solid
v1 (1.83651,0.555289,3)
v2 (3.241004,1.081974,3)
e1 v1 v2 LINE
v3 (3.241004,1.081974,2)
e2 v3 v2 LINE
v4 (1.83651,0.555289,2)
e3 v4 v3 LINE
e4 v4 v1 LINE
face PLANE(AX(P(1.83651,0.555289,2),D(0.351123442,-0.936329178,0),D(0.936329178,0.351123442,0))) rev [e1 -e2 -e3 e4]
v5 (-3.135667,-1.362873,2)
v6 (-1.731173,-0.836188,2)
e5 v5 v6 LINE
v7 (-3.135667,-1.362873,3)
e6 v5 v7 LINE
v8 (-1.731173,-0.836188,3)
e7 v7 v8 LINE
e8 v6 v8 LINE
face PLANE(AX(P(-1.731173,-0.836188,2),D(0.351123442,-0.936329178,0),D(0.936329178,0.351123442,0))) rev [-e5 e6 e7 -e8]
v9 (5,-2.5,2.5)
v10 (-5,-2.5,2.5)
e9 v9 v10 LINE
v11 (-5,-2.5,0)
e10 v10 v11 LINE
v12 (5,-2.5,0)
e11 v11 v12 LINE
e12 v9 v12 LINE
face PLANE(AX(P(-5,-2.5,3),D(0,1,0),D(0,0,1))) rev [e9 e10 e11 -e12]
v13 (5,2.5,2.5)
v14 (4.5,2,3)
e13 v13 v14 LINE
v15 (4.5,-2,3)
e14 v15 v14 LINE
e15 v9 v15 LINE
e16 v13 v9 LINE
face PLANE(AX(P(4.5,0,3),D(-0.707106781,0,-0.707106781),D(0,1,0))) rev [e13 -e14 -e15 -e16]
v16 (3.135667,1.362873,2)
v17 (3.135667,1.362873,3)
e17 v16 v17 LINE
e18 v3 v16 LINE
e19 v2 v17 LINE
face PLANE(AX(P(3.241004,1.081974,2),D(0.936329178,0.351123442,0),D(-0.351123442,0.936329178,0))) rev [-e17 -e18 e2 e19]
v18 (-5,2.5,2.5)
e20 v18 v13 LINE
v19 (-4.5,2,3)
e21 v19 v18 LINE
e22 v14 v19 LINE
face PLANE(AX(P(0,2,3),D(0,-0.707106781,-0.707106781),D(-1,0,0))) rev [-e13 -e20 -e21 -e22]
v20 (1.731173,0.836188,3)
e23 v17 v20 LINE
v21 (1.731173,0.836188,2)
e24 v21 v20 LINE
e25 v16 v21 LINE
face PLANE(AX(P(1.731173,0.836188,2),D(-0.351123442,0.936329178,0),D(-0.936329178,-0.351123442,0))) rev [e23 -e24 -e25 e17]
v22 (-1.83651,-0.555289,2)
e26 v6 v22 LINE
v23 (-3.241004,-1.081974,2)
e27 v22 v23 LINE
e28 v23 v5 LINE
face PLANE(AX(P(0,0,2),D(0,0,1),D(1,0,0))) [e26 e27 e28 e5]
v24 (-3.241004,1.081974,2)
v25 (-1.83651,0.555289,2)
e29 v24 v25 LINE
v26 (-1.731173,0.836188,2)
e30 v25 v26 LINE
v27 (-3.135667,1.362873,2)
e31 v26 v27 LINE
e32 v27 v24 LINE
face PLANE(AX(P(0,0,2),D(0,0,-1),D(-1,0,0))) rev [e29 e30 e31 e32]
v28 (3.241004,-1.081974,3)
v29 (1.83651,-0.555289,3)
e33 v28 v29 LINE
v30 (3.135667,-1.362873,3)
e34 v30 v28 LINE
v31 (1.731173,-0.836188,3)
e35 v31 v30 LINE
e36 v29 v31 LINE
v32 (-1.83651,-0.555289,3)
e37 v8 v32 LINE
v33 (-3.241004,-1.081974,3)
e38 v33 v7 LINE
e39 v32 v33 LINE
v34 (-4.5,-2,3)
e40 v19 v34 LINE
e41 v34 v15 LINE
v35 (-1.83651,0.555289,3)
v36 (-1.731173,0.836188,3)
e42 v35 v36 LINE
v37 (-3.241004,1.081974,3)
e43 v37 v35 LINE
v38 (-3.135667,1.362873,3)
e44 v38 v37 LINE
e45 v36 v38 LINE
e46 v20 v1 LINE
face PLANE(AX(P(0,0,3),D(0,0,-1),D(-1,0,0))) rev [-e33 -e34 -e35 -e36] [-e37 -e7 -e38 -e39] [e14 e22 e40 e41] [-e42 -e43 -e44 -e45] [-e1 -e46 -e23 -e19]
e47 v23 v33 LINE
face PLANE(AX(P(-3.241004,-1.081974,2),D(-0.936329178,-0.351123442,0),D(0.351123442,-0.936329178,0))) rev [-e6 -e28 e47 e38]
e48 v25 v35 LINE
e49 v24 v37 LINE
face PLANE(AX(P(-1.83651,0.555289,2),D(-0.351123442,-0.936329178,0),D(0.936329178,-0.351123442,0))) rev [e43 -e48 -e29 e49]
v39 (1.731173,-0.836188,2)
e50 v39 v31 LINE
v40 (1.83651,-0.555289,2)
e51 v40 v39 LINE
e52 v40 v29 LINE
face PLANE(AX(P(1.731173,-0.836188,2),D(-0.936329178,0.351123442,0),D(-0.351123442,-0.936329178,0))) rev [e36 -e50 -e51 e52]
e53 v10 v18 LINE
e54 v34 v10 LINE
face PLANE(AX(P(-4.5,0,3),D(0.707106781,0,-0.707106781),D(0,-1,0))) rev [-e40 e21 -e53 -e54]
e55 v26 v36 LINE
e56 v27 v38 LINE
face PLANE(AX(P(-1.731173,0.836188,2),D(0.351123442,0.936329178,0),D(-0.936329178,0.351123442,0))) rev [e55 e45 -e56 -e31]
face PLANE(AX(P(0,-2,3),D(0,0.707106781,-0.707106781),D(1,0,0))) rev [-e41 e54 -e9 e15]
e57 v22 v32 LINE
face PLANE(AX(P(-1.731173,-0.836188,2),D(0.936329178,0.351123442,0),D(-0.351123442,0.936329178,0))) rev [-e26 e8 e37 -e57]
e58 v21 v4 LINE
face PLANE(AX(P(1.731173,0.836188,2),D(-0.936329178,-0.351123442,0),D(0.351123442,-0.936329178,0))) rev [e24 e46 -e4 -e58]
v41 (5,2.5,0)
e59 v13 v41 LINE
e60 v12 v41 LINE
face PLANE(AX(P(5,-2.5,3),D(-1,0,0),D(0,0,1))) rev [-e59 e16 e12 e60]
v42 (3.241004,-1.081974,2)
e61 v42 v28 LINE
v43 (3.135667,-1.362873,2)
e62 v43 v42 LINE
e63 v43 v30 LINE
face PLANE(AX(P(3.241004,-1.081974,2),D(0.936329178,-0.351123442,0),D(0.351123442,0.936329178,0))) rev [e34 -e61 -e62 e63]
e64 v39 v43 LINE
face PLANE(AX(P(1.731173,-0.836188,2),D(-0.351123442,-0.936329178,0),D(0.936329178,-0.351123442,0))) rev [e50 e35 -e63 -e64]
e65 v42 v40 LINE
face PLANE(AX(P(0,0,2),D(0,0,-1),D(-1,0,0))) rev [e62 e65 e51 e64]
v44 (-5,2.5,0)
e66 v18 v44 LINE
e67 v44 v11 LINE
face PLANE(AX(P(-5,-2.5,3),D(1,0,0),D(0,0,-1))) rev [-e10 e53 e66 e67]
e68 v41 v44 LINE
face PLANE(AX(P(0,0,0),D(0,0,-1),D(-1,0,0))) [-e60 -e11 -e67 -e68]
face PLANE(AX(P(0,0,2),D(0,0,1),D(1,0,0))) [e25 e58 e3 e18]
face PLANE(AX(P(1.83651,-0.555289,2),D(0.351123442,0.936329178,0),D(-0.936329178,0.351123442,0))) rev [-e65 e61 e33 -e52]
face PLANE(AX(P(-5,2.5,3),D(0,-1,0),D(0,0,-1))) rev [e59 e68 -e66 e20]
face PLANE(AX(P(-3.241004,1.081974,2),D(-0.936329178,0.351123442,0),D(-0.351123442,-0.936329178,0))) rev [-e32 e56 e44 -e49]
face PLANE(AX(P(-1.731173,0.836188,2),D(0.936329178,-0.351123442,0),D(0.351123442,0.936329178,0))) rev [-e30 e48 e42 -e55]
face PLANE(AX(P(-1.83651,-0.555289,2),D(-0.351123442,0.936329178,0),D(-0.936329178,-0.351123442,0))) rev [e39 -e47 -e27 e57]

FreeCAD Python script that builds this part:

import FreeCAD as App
import Part
import Sketcher

V = App.Vector


def edges_at(feature, points):
    """Names of the edges that pass closest to the given points."""
    edges = feature.Shape.Edges
    near = lambda p: min(range(len(edges)), key=lambda i: edges[i].distToShape(Part.Vertex(*p))[0])
    return sorted({f"Edge{near(p) + 1}" for p in points})

doc = App.newDocument("Part")
body = doc.addObject("PartDesign::Body", "Body")

sketch1 = body.newObject("Sketcher::SketchObject", "Sketch")
sketch1.AttachmentSupport = (doc.getObject("XY_Plane"), [""])
sketch1.MapMode = "FlatFace"
sketch1.addGeometry([
    Part.LineSegment(V(-5, 2, 0), V(-5, -2, 0)),
    Part.LineSegment(V(-5, -2, 0), V(5, -2, 0)),
    Part.LineSegment(V(5, -2, 0), V(5, 2, 0)),
    Part.LineSegment(V(5, 2, 0), V(-5, 2, 0)),
], False)
sketch1.addConstraint([
    Sketcher.Constraint("Coincident", 0, 2, 1, 1),
    Sketcher.Constraint("Coincident", 1, 2, 2, 1),
    Sketcher.Constraint("Coincident", 2, 2, 3, 1),
    Sketcher.Constraint("Coincident", 3, 2, 0, 1),
    Sketcher.Constraint("Vertical", 0),
    Sketcher.Constraint("Horizontal", 1),
    Sketcher.Constraint("Vertical", 2),
    Sketcher.Constraint("Horizontal", 3),
    Sketcher.Constraint("Symmetric", 0, 2, 2, 2, -1, 1),
    Sketcher.Constraint("DistanceX", 1, 1, 1, 2, 10.0),
    Sketcher.Constraint("DistanceY", 0, 2, 0, 1, 5.0),
])
pad1 = body.newObject("PartDesign::Pad", "Pad")
pad1.Profile = sketch1
pad1.Length = 3
doc.recompute()

chamfer = body.newObject("PartDesign::Chamfer", "Chamfer")
chamfer.Base = (pad1, edges_at(pad1, [
    (-5, 0, 3),
    (0, -2.5, 3),
    (5, 0, 3),
    (0, 2.5, 3),
]))
chamfer.Size = 0.5

sketch2 = body.newObject("Sketcher::SketchObject", "Sketch001")
sketch2.AttachmentSupport = (doc.getObject("XY_Plane"), [""])
sketch2.MapMode = "FlatFace"
sketch2.AttachmentOffset = App.Placement(V(0, 0, 3), App.Rotation())
sketch2.addGeometry([
    Part.LineSegment(V(1.73, 0.84, 0), V(1.84, 0.56, 0)),
    Part.LineSegment(V(1.84, 0.56, 0), V(3.24, 1.08, 0)),
    Part.LineSegment(V(3.24, 1.08, 0), V(3.14, 1.36, 0)),
    Part.LineSegment(V(3.14, 1.36, 0), V(1.73, 0.84, 0)),
    Part.LineSegment(V(-1.73, 0.84, 0), V(-3.14, 1.36, 0)),
    Part.LineSegment(V(-3.14, 1.36, 0), V(-3.24, 1.08, 0)),
    Part.LineSegment(V(-3.24, 1.08, 0), V(-1.84, 0.56, 0)),
    Part.LineSegment(V(-1.84, 0.56, 0), V(-1.73, 0.84, 0)),
    Part.LineSegment(V(1.73, -0.84, 0), V(3.14, -1.36, 0)),
    Part.LineSegment(V(3.14, -1.36, 0), V(3.24, -1.08, 0)),
    Part.LineSegment(V(3.24, -1.08, 0), V(1.84, -0.56, 0)),
    Part.LineSegment(V(1.84, -0.56, 0), V(1.73, -0.84, 0)),
    Part.LineSegment(V(-1.73, -0.84, 0), V(-1.84, -0.56, 0)),
    Part.LineSegment(V(-1.84, -0.56, 0), V(-3.24, -1.08, 0)),
    Part.LineSegment(V(-3.24, -1.08, 0), V(-3.14, -1.36, 0)),
    Part.LineSegment(V(-3.14, -1.36, 0), V(-1.73, -0.84, 0)),
], False)
sketch2.addConstraint([
    Sketcher.Constraint("Coincident", 0, 2, 1, 1),
    Sketcher.Constraint("Coincident", 1, 2, 2, 1),
    Sketcher.Constraint("Coincident", 2, 2, 3, 1),
    Sketcher.Constraint("Coincident", 3, 2, 0, 1),
    Sketcher.Constraint("Coincident", 4, 2, 5, 1),
    Sketcher.Constraint("Coincident", 5, 2, 6, 1),
    Sketcher.Constraint("Coincident", 6, 2, 7, 1),
    Sketcher.Constraint("Coincident", 7, 2, 4, 1),
    Sketcher.Constraint("Coincident", 8, 2, 9, 1),
    Sketcher.Constraint("Coincident", 9, 2, 10, 1),
    Sketcher.Constraint("Coincident", 10, 2, 11, 1),
    Sketcher.Constraint("Coincident", 11, 2, 8, 1),
    Sketcher.Constraint("Coincident", 12, 2, 13, 1),
    Sketcher.Constraint("Coincident", 13, 2, 14, 1),
    Sketcher.Constraint("Coincident", 14, 2, 15, 1),
    Sketcher.Constraint("Coincident", 15, 2, 12, 1),
    Sketcher.Constraint("Symmetric", 4, 2, 8, 2, -1, 1),
    Sketcher.Constraint("Symmetric", 5, 2, 9, 2, -1, 1),
    Sketcher.Constraint("Symmetric", 6, 2, 10, 2, -1, 1),
    Sketcher.Constraint("Symmetric", 7, 2, 11, 2, -1, 1),
    Sketcher.Constraint("Symmetric", 0, 2, 12, 2, -1, 1),
    Sketcher.Constraint("Symmetric", 1, 2, 13, 2, -1, 1),
    Sketcher.Constraint("Symmetric", 2, 2, 14, 2, -1, 1),
    Sketcher.Constraint("Symmetric", 3, 2, 15, 2, -1, 1),
    Sketcher.Constraint("Symmetric", 2, 2, 4, 2, -2),
    Sketcher.Constraint("Symmetric", 1, 2, 5, 2, -2),
    Sketcher.Constraint("Symmetric", 0, 2, 6, 2, -2),
    Sketcher.Constraint("Symmetric", 3, 2, 7, 2, -2),
    Sketcher.Constraint("Perpendicular", 0, 1),
    Sketcher.Constraint("Perpendicular", 1, 2),
    Sketcher.Constraint("Perpendicular", 2, 3),
    Sketcher.Constraint("Distance", 0, 0.3),
    Sketcher.Constraint("Distance", 1, 1.5),
    Sketcher.Constraint("DistanceY", 1, 2, 2, 2, 0.280899),
    Sketcher.Constraint("DistanceX", -1, 1, 0, 2, 1.83651),
    Sketcher.Constraint("DistanceY", -1, 1, 0, 2, 0.555289),
])
pocket1 = body.newObject("PartDesign::Pocket", "Pocket")
pocket1.Profile = sketch2
pocket1.Length = 1

doc.recompute()
